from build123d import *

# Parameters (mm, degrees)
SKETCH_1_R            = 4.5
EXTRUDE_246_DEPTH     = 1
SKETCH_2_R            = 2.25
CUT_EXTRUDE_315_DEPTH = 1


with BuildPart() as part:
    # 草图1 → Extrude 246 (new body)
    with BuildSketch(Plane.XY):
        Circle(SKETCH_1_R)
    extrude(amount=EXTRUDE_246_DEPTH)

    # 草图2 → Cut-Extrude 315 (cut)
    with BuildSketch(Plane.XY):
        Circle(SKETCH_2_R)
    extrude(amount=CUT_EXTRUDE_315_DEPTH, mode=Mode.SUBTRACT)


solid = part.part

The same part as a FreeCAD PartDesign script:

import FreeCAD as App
import Part
import Sketcher
from FreeCAD import Vector

doc = App.newDocument("Part")
body = doc.addObject("PartDesign::Body", "Body")

sketch1 = body.newObject("Sketcher::SketchObject", "Sketch")
sketch1.AttachmentSupport = (doc.getObject("XY_Plane"), [""])
sketch1.MapMode = "FlatFace"
sketch1.addGeometry(Part.Circle(Vector(0, 0, 0), Vector(0, 0, 1), 4.5), False)
sketch1.addConstraint(Sketcher.Constraint("Coincident", 0, 3, -1, 1))
sketch1.addConstraint(Sketcher.Constraint("Diameter", 0, 9.0))
pad1 = body.newObject("PartDesign::Pad", "Pad")
pad1.Profile = sketch1
pad1.Length = 1

sketch2 = body.newObject("Sketcher::SketchObject", "Sketch001")
sketch2.AttachmentSupport = (doc.getObject("XY_Plane"), [""])
sketch2.MapMode = "FlatFace"
sketch2.addGeometry(Part.Circle(Vector(0, 0, 0), Vector(0, 0, 1), 2.25), False)
sketch2.addConstraint(Sketcher.Constraint("Coincident", 0, 3, -1, 1))
sketch2.addConstraint(Sketcher.Constraint("Diameter", 0, 4.5))
pocket1 = body.newObject("PartDesign::Pocket", "Pocket")
pocket1.Profile = sketch2
pocket1.Length = 1
pocket1.Reversed = True

doc.recompute()
